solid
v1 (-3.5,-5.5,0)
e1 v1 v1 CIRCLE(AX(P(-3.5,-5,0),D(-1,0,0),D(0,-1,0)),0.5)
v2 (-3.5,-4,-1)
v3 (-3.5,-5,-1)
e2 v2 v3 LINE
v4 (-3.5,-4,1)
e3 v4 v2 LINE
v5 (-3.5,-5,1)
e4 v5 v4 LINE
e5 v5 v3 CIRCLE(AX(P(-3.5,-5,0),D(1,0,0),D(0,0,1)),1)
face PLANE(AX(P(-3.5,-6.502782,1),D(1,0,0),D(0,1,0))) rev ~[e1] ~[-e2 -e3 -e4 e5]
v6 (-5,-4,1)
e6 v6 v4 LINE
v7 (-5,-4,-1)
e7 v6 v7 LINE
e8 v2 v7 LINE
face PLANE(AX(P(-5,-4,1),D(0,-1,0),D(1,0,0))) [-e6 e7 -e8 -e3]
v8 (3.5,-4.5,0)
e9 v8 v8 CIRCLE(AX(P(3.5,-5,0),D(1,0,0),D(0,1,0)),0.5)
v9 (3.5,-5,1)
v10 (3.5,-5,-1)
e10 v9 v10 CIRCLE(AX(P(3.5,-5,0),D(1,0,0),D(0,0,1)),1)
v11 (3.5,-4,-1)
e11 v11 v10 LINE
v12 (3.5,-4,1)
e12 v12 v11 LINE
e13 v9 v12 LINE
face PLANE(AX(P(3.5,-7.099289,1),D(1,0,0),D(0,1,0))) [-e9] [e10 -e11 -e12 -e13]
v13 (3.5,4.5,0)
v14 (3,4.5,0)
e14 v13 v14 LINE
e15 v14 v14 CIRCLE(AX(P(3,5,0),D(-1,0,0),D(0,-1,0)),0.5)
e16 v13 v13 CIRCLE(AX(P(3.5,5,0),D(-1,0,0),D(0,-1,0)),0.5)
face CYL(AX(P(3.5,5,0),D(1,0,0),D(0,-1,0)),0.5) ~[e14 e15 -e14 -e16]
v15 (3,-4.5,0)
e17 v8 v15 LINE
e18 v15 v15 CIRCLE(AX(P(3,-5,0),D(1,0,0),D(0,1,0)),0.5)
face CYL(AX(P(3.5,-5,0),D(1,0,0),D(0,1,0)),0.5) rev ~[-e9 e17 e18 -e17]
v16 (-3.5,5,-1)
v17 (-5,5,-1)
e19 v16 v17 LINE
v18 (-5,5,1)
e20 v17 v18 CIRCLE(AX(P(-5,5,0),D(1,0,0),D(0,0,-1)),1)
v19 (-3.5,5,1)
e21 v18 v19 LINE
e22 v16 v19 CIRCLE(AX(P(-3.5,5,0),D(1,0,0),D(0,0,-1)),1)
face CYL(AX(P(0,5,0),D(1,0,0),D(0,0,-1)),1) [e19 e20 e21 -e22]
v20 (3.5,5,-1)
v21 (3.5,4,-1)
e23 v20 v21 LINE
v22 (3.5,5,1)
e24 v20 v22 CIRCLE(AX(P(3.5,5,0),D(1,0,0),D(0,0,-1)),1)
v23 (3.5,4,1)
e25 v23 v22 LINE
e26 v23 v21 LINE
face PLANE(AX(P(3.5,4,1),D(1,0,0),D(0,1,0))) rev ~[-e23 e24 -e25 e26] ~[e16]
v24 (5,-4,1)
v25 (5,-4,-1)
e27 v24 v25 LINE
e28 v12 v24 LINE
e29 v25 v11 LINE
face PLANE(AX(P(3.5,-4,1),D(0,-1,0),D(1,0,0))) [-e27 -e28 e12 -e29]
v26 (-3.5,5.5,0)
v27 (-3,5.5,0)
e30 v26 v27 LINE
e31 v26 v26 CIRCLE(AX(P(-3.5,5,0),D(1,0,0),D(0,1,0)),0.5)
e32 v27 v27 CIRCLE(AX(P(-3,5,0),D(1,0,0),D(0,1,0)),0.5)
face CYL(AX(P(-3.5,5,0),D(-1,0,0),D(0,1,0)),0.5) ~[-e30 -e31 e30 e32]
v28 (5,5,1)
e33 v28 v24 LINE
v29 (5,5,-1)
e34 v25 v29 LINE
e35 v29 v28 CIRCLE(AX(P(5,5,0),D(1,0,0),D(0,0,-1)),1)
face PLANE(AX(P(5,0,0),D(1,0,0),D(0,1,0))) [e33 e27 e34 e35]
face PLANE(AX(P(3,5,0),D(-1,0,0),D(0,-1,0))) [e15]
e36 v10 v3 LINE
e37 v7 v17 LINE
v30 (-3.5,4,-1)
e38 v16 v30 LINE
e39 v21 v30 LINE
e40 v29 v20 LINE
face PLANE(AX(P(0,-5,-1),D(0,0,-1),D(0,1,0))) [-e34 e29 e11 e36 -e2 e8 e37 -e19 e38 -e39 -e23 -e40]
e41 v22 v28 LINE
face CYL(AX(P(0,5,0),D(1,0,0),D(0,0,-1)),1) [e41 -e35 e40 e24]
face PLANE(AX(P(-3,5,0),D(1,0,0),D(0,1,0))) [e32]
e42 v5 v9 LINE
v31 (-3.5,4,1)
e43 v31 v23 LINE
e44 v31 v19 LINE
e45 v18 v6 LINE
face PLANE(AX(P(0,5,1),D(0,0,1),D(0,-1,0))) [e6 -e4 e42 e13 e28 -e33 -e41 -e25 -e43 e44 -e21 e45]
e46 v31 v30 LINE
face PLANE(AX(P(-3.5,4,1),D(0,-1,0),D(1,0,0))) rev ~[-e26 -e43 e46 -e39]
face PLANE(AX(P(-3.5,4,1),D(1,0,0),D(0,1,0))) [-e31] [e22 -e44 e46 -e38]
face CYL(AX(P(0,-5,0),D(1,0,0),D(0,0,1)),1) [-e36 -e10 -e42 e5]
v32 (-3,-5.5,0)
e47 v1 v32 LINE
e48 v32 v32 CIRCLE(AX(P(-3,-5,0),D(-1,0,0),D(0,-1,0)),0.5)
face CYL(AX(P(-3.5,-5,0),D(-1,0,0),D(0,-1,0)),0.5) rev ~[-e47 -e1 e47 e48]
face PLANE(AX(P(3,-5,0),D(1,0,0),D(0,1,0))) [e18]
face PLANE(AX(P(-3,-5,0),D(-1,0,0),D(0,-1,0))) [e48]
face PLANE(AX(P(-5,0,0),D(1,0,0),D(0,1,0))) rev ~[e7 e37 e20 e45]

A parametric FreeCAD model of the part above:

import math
import FreeCAD as App
import Part
import Sketcher
from FreeCAD import Vector

doc = App.newDocument("Part")
params = doc.addObject("Spreadsheet::Sheet", "Params")
for row, (alias, value) in enumerate([
    ("sketch1_radius", "1 mm"),
    ("sketch1_width", "10 mm"),
    ("pad1_length", "10 mm"),
    ("sketch2_width", "7 mm"),
    ("sketch2_width2", "1.5 mm"),
    ("pocket1_length", "5 mm"),
    ("sketch3_diameter", "1 mm"),
    ("pocket2_length", "0.5 mm"),
    ("sketch4_diameter", "1 mm"),
    ("pocket3_length", "0.5 mm"),
    ("sketch5_diameter", "1 mm"),
    ("pad2_length", "0.5 mm"),
    ("sketch6_diameter", "1 mm"),
    ("pad3_length", "0.5 mm"),
], start=1):
    params.set(f"A{row}", alias)
    params.set(f"B{row}", "=" + value)
    params.setAlias(f"B{row}", alias)

body = doc.addObject("PartDesign::Body", "Body")

sketch1 = body.newObject("Sketcher::SketchObject", "Sketch")
sketch1.AttachmentSupport = (doc.getObject("YZ_Plane"), [""])
sketch1.MapMode = "FlatFace"
sketch1.addGeometry(Part.ArcOfCircle(Part.Circle(Vector(5, 0, 0), Vector(0, 0, 1), 1), math.radians(-90), math.radians(90)), False)
sketch1.addGeometry(Part.LineSegment(Vector(5, 1, 0), Vector(-5, 1, 0)), False)
sketch1.addGeometry(Part.ArcOfCircle(Part.Circle(Vector(-5, 0, 0), Vector(0, 0, 1), 1), math.radians(90), math.radians(270)), False)
sketch1.addGeometry(Part.LineSegment(Vector(-5, -1, 0), Vector(5, -1, 0)), False)
sketch1.addConstraint(Sketcher.Constraint("Tangent", 0, 2, 1, 1))
sketch1.addConstraint(Sketcher.Constraint("Tangent", 1, 2, 2, 1))
sketch1.addConstraint(Sketcher.Constraint("Tangent", 2, 2, 3, 1))
sketch1.addConstraint(Sketcher.Constraint("Tangent", 3, 2, 0, 1))
sketch1.addConstraint(Sketcher.Constraint("Horizontal", 1))
sketch1.addConstraint(Sketcher.Constraint("Horizontal", 3))
sketch1.addConstraint(Sketcher.Constraint("Symmetric", 0, 3, 2, 3, -1, 1))
sketch1.addConstraint(Sketcher.Constraint("Radius", 0, 1.0))
sketch1.addConstraint(Sketcher.Constraint("DistanceX", 1, 2, 1, 1, 10.0))
sketch1.setExpression("Constraints[7]", "Params.sketch1_radius")
sketch1.setExpression("Constraints[8]", "Params.sketch1_width")
pad1 = body.newObject("PartDesign::Pad", "Pad")
pad1.Profile = sketch1
pad1.setExpression("Length", "Params.pad1_length")
pad1.Midplane = True

sketch2 = body.newObject("Sketcher::SketchObject", "Sketch001")
sketch2.AttachmentSupport = (doc.getObject("XY_Plane"), [""])
sketch2.MapMode = "FlatFace"
sketch2.AttachmentOffset = App.Placement(Vector(0, 0, 1), App.Rotation())
sketch2.addGeometry(Part.LineSegment(Vector(-3.5, 6.1, 0), Vector(-3.5, 4, 0)), False)
sketch2.addGeometry(Part.LineSegment(Vector(-3.5, 4, 0), Vector(3.5, 4, 0)), False)
sketch2.addGeometry(Part.LineSegment(Vector(3.5, 4, 0), Vector(3.5, 6.1, 0)), False)
sketch2.addGeometry(Part.LineSegment(Vector(3.5, 6.1, 0), Vector(-3.5, 6.1, 0)), False)
sketch2.addGeometry(Part.LineSegment(Vector(-5, -4, 0), Vector(-5, -6.5, 0)), False)
sketch2.addGeometry(Part.LineSegment(Vector(-5, -6.5, 0), Vector(-3.5, -6.5, 0)), False)
sketch2.addGeometry(Part.LineSegment(Vector(-3.5, -6.5, 0), Vector(-3.5, -4, 0)), False)
sketch2.addGeometry(Part.LineSegment(Vector(-3.5, -4, 0), Vector(-5, -4, 0)), False)
sketch2.addGeometry(Part.LineSegment(Vector(3.5, -4, 0), Vector(3.5, -7.1, 0)), False)
sketch2.addGeometry(Part.LineSegment(Vector(3.5, -7.1, 0), Vector(5, -7.1, 0)), False)
sketch2.addGeometry(Part.LineSegment(Vector(5, -7.1, 0), Vector(5, -4, 0)), False)
sketch2.addGeometry(Part.LineSegment(Vector(5, -4, 0), Vector(3.5, -4, 0)), False)
sketch2.addConstraint(Sketcher.Constraint("Coincident", 0, 2, 1, 1))
sketch2.addConstraint(Sketcher.Constraint("Coincident", 1, 2, 2, 1))
sketch2.addConstraint(Sketcher.Constraint("Coincident", 2, 2, 3, 1))
sketch2.addConstraint(Sketcher.Constraint("Coincident", 3, 2, 0, 1))
sketch2.addConstraint(Sketcher.Constraint("Coincident", 4, 2, 5, 1))
sketch2.addConstraint(Sketcher.Constraint("Coincident", 5, 2, 6, 1))
sketch2.addConstraint(Sketcher.Constraint("Coincident", 6, 2, 7, 1))
sketch2.addConstraint(Sketcher.Constraint("Coincident", 7, 2, 4, 1))
sketch2.addConstraint(Sketcher.Constraint("Coincident", 8, 2, 9, 1))
sketch2.addConstraint(Sketcher.Constraint("Coincident", 9, 2, 10, 1))
sketch2.addConstraint(Sketcher.Constraint("Coincident", 10, 2, 11, 1))
sketch2.addConstraint(Sketcher.Constraint("Coincident", 11, 2, 8, 1))
sketch2.addConstraint(Sketcher.Constraint("Vertical", 0))
sketch2.addConstraint(Sketcher.Constraint("Horizontal", 1))
sketch2.addConstraint(Sketcher.Constraint("Vertical", 2))
sketch2.addConstraint(Sketcher.Constraint("Horizontal", 3))
sketch2.addConstraint(Sketcher.Constraint("Vertical", 4))
sketch2.addConstraint(Sketcher.Constraint("Horizontal", 5))
sketch2.addConstraint(Sketcher.Constraint("Vertical", 6))
sketch2.addConstraint(Sketcher.Constraint("Horizontal", 7))
sketch2.addConstraint(Sketcher.Constraint("Vertical", 8))
sketch2.addConstraint(Sketcher.Constraint("Horizontal", 9))
sketch2.addConstraint(Sketcher.Constraint("Vertical", 10))
sketch2.addConstraint(Sketcher.Constraint("Horizontal", 11))
sketch2.addConstraint(Sketcher.Constraint("Symmetric", 1, 2, 6, 2, -1, 1))
sketch2.addConstraint(Sketcher.Constraint("Symmetric", 0, 2, 11, 2, -1, 1))
sketch2.addConstraint(Sketcher.Constraint("Vertical", 3, 2, 5, 2))
sketch2.addConstraint(Sketcher.Constraint("Equal", 7, 9))
sketch2.addConstraint(Sketcher.Constraint("DistanceX", 1, 1, 1, 2, 7.0))
sketch2.addConstraint(Sketcher.Constraint("DistanceX", 5, 1, 5, 2, 1.5))
sketch2.addConstraint(Sketcher.Constraint("DistanceY", -1, 1, 0, 2, 4.0))
sketch2.addConstraint(Sketcher.Constraint("DistanceY", 4, 2, 4, 1, 2.502782))
sketch2.addConstraint(Sketcher.Constraint("DistanceY", 8, 2, 8, 1, 3.099289))
sketch2.addConstraint(Sketcher.Constraint("DistanceY", 0, 2, 0, 1, 2.107783))
sketch2.setExpression("Constraints[28]", "Params.sketch2_width")
sketch2.setExpression("Constraints[29]", "Params.sketch2_width2")
pocket1 = body.newObject("PartDesign::Pocket", "Pocket")
pocket1.Profile = sketch2
pocket1.setExpression("Length", "Params.pocket1_length")

sketch3 = body.newObject("Sketcher::SketchObject", "Sketch002")
sketch3.AttachmentSupport = (doc.getObject("YZ_Plane"), [""])
sketch3.MapMode = "FlatFace"
sketch3.AttachmentOffset = App.Placement(Vector(0, 0, -3.5), App.Rotation())
sketch3.addGeometry(Part.Circle(Vector(-5, 0, 0), Vector(0, 0, 1), 0.5), False)
sketch3.addConstraint(Sketcher.Constraint("PointOnObject", 0, 3, -1))
sketch3.addConstraint(Sketcher.Constraint("Diameter", 0, 1.0))
sketch3.addConstraint(Sketcher.Constraint("DistanceX", 0, 3, -1, 1, 5.0))
sketch3.setExpression("Constraints[1]", "Params.sketch3_diameter")
pocket2 = body.newObject("PartDesign::Pocket", "Pocket001")
pocket2.Profile = sketch3
pocket2.setExpression("Length", "Params.pocket2_length")
pocket2.Reversed = True

sketch4 = body.newObject("Sketcher::SketchObject", "Sketch003")
sketch4.AttachmentSupport = (doc.getObject("YZ_Plane"), [""])
sketch4.MapMode = "FlatFace"
sketch4.AttachmentOffset = App.Placement(Vector(0, 0, 3.5), App.Rotation())
sketch4.addGeometry(Part.Circle(Vector(-5, 0, 0), Vector(0, 0, 1), 0.5), False)
sketch4.addConstraint(Sketcher.Constraint("PointOnObject", 0, 3, -1))
sketch4.addConstraint(Sketcher.Constraint("Diameter", 0, 1.0))
sketch4.addConstraint(Sketcher.Constraint("DistanceX", 0, 3, -1, 1, 5.0))
sketch4.setExpression("Constraints[1]", "Params.sketch4_diameter")
pocket3 = body.newObject("PartDesign::Pocket", "Pocket002")
pocket3.Profile = sketch4
pocket3.setExpression("Length", "Params.pocket3_length")

sketch5 = body.newObject("Sketcher::SketchObject", "Sketch004")
sketch5.AttachmentSupport = (doc.getObject("YZ_Plane"), [""])
sketch5.MapMode = "FlatFace"
sketch5.AttachmentOffset = App.Placement(Vector(0, 0, -3.5), App.Rotation())
sketch5.addGeometry(Part.Circle(Vector(5, 0, 0), Vector(0, 0, 1), 0.5), False)
sketch5.addConstraint(Sketcher.Constraint("PointOnObject", 0, 3, -1))
sketch5.addConstraint(Sketcher.Constraint("Diameter", 0, 1.0))
sketch5.addConstraint(Sketcher.Constraint("DistanceX", -1, 1, 0, 3, 5.0))
sketch5.setExpression("Constraints[1]", "Params.sketch5_diameter")
pad2 = body.newObject("PartDesign::Pad", "Pad001")
pad2.Profile = sketch5
pad2.setExpression("Length", "Params.pad2_length")

sketch6 = body.newObject("Sketcher::SketchObject", "Sketch005")
sketch6.AttachmentSupport = (doc.getObject("YZ_Plane"), [""])
sketch6.MapMode = "FlatFace"
sketch6.AttachmentOffset = App.Placement(Vector(0, 0, 3.5), App.Rotation())
sketch6.addGeometry(Part.Circle(Vector(5, 0, 0), Vector(0, 0, 1), 0.5), False)
sketch6.addConstraint(Sketcher.Constraint("PointOnObject", 0, 3, -1))
sketch6.addConstraint(Sketcher.Constraint("Diameter", 0, 1.0))
sketch6.addConstraint(Sketcher.Constraint("DistanceX", -1, 1, 0, 3, 5.0))
sketch6.setExpression("Constraints[1]", "Params.sketch6_diameter")
pad3 = body.newObject("PartDesign::Pad", "Pad002")
pad3.Profile = sketch6
pad3.setExpression("Length", "Params.pad3_length")
pad3.Reversed = True

doc.recompute()
